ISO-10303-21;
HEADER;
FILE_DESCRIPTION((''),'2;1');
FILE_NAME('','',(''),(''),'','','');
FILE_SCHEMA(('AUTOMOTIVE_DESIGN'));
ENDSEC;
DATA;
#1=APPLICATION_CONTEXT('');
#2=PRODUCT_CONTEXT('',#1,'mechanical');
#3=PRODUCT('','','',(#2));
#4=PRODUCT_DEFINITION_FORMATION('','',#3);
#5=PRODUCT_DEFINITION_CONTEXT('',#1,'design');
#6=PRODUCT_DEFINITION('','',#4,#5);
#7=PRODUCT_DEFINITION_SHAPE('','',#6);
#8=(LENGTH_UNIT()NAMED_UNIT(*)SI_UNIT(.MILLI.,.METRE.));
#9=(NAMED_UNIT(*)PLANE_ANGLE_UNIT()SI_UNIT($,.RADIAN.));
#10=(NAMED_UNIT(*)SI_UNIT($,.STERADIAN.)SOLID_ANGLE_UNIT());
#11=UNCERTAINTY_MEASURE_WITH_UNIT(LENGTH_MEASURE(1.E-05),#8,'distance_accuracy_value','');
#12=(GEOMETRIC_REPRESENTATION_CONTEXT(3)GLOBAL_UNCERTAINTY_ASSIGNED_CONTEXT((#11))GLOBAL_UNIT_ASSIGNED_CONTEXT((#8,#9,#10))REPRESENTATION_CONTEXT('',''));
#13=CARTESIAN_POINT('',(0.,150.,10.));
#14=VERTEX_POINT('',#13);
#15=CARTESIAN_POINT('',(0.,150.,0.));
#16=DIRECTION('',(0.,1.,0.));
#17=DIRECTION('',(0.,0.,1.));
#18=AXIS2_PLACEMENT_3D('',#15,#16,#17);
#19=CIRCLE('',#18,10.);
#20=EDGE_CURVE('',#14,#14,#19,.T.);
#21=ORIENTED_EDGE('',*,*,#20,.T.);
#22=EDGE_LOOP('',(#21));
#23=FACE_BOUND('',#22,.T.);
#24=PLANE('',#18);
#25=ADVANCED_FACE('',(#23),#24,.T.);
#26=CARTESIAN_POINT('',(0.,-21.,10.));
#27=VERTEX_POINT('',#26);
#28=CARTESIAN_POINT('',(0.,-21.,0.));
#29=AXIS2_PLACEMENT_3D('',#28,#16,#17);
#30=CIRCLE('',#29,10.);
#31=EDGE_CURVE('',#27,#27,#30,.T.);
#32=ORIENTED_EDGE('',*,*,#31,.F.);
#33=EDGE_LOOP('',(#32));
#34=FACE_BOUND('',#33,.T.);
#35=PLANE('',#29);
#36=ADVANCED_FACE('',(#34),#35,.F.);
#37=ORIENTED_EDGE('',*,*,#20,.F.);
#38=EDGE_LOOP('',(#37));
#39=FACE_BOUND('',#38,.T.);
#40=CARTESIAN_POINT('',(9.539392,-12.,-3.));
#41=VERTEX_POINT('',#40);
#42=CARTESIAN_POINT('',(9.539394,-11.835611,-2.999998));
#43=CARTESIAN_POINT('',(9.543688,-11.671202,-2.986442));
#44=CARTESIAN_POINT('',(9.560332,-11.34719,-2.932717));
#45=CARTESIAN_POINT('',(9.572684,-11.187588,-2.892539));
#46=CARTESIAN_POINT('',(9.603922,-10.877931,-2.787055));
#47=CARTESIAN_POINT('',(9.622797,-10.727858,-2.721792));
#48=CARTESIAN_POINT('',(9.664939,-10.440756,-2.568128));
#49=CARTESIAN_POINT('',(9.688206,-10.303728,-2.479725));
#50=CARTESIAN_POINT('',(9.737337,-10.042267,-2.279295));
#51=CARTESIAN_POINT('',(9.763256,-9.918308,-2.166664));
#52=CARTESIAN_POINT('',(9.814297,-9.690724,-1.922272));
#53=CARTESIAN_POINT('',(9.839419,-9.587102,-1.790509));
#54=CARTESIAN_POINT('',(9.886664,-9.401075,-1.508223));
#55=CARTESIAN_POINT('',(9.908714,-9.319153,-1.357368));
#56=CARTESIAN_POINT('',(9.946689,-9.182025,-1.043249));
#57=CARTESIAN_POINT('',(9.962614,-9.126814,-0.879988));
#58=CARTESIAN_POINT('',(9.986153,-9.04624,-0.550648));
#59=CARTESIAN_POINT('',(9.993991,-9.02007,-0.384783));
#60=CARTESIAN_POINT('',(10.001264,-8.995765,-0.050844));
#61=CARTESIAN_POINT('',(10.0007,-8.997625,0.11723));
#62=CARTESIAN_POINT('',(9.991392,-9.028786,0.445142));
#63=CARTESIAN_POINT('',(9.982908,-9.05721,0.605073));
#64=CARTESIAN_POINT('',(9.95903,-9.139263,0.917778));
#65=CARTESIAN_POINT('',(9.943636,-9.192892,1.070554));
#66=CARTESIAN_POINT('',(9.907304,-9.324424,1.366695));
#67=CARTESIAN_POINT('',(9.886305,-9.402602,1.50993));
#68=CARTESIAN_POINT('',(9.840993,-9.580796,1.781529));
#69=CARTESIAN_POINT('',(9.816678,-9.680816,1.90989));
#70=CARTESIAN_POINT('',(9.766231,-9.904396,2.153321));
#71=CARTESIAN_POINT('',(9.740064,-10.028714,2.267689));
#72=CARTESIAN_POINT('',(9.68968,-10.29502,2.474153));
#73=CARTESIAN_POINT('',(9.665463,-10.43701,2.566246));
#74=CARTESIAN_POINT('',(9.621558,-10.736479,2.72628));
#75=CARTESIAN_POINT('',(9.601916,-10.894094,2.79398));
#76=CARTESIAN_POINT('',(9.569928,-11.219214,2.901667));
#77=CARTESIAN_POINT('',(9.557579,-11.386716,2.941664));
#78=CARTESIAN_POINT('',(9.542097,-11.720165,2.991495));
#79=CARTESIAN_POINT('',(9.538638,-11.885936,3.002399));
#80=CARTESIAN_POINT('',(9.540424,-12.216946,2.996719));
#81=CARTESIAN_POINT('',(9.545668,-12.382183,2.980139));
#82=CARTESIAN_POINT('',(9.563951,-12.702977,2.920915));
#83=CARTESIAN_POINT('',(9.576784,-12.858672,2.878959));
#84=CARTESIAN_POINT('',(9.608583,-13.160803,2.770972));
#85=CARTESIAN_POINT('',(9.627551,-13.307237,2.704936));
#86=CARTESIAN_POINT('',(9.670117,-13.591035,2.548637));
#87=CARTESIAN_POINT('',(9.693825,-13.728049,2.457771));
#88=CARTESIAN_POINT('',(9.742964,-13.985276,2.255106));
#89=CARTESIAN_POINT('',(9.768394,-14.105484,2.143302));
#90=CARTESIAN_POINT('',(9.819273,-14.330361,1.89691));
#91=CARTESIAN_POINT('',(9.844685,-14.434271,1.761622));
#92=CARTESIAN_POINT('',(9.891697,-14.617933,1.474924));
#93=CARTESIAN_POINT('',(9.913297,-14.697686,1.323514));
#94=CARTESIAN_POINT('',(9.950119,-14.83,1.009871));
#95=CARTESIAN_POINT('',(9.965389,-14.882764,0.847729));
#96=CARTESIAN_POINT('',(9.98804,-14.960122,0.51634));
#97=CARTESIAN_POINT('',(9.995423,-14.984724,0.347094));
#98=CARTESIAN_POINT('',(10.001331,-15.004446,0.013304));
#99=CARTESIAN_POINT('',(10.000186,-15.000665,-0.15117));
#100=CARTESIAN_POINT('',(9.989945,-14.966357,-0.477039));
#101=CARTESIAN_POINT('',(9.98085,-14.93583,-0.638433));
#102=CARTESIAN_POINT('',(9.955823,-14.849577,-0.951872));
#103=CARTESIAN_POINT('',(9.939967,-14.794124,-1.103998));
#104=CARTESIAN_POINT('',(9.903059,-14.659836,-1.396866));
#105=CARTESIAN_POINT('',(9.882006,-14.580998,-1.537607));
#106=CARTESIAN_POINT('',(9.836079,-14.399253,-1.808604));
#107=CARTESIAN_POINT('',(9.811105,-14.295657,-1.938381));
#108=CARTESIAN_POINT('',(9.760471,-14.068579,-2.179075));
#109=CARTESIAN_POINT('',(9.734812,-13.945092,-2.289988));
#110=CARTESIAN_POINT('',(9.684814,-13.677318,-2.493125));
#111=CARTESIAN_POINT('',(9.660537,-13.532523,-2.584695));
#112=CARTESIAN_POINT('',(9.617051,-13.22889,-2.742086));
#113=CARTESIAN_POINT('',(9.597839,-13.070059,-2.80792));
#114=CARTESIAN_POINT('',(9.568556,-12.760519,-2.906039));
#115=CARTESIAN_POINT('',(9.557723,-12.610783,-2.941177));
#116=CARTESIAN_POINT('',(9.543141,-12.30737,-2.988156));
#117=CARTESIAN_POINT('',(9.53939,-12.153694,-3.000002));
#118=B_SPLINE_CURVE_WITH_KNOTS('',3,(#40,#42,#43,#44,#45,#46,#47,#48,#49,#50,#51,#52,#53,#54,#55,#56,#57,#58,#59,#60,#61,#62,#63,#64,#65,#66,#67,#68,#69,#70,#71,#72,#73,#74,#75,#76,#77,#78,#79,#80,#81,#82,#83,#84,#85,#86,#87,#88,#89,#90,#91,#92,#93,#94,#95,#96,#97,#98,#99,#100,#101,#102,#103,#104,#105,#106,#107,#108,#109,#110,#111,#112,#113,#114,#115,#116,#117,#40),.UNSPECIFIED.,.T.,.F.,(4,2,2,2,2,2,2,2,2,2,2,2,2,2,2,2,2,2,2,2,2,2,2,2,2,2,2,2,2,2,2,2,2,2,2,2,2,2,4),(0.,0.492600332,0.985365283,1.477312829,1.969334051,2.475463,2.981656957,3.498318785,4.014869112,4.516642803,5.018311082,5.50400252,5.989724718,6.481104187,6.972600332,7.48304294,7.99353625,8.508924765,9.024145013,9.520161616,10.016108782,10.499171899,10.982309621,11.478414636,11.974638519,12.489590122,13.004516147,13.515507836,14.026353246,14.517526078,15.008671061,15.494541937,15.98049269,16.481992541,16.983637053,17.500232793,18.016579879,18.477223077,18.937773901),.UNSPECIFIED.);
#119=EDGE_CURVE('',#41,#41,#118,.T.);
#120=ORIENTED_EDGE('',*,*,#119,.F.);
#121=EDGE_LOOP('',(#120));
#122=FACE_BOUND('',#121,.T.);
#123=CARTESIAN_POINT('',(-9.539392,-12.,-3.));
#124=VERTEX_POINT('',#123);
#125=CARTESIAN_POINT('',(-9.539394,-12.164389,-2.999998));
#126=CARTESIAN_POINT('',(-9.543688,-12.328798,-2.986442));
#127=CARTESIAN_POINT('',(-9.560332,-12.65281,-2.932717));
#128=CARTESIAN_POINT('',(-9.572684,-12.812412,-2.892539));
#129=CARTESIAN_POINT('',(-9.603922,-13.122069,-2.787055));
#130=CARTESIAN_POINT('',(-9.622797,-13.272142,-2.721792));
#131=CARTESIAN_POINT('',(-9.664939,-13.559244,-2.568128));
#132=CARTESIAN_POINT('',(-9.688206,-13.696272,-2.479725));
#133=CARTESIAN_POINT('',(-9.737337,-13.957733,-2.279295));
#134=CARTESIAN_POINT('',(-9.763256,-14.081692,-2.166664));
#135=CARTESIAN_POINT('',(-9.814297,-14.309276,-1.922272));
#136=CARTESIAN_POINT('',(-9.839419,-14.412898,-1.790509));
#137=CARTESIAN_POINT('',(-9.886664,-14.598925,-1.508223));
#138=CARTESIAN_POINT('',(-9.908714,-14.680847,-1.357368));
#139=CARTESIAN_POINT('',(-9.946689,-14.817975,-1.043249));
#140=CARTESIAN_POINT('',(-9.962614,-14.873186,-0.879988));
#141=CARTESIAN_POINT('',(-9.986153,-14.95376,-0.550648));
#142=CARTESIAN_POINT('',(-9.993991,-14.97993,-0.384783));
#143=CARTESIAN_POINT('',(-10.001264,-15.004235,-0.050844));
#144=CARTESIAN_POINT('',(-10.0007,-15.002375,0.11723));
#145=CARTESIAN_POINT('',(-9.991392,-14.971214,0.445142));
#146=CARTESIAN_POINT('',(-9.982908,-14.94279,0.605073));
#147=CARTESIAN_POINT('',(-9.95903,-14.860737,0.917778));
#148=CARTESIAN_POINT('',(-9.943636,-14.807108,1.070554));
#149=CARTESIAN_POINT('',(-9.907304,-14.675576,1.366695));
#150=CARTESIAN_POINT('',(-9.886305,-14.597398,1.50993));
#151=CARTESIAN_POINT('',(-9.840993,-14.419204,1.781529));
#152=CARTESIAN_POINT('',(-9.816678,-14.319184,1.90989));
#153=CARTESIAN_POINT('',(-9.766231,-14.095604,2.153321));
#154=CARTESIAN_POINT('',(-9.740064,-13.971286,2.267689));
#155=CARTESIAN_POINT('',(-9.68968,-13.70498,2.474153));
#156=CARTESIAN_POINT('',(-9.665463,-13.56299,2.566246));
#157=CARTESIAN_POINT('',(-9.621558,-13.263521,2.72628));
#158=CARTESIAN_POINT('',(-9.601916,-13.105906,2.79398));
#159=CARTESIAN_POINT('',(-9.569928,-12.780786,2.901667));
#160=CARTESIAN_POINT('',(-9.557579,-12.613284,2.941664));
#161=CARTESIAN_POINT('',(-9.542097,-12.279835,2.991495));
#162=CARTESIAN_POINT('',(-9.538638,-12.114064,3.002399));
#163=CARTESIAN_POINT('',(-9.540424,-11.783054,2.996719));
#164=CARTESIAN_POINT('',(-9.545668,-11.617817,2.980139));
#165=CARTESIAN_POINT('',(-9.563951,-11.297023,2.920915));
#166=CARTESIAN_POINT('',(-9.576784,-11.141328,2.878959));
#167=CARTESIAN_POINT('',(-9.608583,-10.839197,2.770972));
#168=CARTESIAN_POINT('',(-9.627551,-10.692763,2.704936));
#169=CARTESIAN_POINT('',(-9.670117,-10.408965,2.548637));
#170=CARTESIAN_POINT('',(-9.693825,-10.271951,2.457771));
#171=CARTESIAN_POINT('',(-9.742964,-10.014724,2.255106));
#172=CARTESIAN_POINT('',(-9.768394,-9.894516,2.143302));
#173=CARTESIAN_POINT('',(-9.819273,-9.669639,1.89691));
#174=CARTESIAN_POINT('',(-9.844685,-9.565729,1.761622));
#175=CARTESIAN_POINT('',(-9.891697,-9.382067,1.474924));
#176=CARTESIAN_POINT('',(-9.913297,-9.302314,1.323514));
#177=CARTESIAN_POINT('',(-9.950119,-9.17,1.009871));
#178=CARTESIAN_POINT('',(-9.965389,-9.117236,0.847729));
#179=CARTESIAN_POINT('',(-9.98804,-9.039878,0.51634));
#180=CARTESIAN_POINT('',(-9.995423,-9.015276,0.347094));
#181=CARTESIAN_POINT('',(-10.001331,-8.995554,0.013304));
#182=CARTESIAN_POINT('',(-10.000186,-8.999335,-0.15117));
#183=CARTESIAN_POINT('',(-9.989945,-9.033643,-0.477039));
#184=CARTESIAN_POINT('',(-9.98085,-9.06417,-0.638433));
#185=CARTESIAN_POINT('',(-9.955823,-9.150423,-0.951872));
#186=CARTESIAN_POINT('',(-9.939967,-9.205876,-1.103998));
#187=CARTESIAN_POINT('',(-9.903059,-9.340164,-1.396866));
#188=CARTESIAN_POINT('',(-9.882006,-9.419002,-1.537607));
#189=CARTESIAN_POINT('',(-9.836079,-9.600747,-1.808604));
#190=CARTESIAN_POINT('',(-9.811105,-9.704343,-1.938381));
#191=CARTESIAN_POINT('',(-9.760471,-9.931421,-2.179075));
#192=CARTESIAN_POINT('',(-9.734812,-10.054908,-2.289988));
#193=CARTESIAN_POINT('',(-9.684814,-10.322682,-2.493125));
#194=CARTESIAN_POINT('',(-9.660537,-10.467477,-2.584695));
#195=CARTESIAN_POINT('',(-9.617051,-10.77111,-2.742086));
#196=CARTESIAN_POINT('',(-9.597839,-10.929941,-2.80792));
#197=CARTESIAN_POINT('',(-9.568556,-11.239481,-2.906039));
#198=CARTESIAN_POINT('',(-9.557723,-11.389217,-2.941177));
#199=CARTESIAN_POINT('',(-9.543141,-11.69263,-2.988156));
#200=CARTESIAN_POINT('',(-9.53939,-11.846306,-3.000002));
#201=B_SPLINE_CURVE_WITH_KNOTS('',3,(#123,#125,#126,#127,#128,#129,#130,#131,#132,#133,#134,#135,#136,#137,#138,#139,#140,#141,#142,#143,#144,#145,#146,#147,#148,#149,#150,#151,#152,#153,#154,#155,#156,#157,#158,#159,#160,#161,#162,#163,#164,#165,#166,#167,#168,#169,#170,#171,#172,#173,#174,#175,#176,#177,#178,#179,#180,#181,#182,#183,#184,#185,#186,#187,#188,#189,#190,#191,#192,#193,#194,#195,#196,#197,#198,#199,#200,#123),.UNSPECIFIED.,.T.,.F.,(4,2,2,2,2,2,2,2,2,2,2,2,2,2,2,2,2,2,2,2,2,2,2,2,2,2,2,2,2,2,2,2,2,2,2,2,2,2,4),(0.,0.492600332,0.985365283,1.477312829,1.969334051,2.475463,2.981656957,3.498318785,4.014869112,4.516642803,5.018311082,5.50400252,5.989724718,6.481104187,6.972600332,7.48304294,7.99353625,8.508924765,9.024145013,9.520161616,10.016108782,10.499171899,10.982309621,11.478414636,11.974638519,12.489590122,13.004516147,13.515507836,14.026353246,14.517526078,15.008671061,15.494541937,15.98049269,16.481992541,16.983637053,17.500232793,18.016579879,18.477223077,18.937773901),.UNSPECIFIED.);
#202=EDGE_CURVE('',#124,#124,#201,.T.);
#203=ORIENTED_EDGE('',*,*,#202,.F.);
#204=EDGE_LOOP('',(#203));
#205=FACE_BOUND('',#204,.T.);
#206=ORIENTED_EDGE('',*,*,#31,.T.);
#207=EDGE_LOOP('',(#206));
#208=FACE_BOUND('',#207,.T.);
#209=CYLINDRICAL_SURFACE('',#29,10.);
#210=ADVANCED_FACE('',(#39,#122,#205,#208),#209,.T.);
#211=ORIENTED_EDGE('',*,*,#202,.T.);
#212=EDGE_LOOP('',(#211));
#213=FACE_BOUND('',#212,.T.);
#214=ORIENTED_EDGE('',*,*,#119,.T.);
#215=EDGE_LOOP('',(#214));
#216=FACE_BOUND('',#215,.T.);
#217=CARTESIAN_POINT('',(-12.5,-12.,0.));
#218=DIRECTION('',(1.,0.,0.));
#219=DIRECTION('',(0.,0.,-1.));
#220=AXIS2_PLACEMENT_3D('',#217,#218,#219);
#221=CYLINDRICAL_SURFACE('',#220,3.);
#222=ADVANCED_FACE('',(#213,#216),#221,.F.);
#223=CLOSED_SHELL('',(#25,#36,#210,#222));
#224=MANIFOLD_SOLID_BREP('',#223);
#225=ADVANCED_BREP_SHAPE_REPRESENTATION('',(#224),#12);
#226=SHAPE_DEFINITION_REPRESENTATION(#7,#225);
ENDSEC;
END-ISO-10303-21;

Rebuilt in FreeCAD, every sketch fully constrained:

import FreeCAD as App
import Part
import Sketcher

V = App.Vector

doc = App.newDocument("Part")
body = doc.addObject("PartDesign::Body", "Body")

sketch1 = body.newObject("Sketcher::SketchObject", "Sketch")
sketch1.AttachmentSupport = (doc.getObject("XZ_Plane"), [""])
sketch1.MapMode = "FlatFace"
sketch1.addGeometry(Part.Circle(V(0, 0, 0), V(0, 0, 1), 10), False)
sketch1.addConstraint(Sketcher.Constraint("Coincident", 0, 3, -1, 1))
sketch1.addConstraint(Sketcher.Constraint("Diameter", 0, 20.0))
pad1 = body.newObject("PartDesign::Pad", "Pad")
pad1.Profile = sketch1
pad1.Type = "TwoLengths"
pad1.Length = 150
pad1.Length2 = 21
pad1.Reversed = True

sketch2 = body.newObject("Sketcher::SketchObject", "Sketch001")
sketch2.AttachmentSupport = (doc.getObject("YZ_Plane"), [""])
sketch2.MapMode = "FlatFace"
sketch2.addGeometry(Part.Circle(V(-12, 0, 0), V(0, 0, 1), 3), False)
sketch2.addConstraint(Sketcher.Constraint("PointOnObject", 0, 3, -1))
sketch2.addConstraint(Sketcher.Constraint("Diameter", 0, 6.0))
sketch2.addConstraint(Sketcher.Constraint("DistanceX", 0, 3, -1, 1, 12.0))
pocket1 = body.newObject("PartDesign::Pocket", "Pocket")
pocket1.Profile = sketch2
pocket1.Length = 25
pocket1.Midplane = True

doc.recompute()
